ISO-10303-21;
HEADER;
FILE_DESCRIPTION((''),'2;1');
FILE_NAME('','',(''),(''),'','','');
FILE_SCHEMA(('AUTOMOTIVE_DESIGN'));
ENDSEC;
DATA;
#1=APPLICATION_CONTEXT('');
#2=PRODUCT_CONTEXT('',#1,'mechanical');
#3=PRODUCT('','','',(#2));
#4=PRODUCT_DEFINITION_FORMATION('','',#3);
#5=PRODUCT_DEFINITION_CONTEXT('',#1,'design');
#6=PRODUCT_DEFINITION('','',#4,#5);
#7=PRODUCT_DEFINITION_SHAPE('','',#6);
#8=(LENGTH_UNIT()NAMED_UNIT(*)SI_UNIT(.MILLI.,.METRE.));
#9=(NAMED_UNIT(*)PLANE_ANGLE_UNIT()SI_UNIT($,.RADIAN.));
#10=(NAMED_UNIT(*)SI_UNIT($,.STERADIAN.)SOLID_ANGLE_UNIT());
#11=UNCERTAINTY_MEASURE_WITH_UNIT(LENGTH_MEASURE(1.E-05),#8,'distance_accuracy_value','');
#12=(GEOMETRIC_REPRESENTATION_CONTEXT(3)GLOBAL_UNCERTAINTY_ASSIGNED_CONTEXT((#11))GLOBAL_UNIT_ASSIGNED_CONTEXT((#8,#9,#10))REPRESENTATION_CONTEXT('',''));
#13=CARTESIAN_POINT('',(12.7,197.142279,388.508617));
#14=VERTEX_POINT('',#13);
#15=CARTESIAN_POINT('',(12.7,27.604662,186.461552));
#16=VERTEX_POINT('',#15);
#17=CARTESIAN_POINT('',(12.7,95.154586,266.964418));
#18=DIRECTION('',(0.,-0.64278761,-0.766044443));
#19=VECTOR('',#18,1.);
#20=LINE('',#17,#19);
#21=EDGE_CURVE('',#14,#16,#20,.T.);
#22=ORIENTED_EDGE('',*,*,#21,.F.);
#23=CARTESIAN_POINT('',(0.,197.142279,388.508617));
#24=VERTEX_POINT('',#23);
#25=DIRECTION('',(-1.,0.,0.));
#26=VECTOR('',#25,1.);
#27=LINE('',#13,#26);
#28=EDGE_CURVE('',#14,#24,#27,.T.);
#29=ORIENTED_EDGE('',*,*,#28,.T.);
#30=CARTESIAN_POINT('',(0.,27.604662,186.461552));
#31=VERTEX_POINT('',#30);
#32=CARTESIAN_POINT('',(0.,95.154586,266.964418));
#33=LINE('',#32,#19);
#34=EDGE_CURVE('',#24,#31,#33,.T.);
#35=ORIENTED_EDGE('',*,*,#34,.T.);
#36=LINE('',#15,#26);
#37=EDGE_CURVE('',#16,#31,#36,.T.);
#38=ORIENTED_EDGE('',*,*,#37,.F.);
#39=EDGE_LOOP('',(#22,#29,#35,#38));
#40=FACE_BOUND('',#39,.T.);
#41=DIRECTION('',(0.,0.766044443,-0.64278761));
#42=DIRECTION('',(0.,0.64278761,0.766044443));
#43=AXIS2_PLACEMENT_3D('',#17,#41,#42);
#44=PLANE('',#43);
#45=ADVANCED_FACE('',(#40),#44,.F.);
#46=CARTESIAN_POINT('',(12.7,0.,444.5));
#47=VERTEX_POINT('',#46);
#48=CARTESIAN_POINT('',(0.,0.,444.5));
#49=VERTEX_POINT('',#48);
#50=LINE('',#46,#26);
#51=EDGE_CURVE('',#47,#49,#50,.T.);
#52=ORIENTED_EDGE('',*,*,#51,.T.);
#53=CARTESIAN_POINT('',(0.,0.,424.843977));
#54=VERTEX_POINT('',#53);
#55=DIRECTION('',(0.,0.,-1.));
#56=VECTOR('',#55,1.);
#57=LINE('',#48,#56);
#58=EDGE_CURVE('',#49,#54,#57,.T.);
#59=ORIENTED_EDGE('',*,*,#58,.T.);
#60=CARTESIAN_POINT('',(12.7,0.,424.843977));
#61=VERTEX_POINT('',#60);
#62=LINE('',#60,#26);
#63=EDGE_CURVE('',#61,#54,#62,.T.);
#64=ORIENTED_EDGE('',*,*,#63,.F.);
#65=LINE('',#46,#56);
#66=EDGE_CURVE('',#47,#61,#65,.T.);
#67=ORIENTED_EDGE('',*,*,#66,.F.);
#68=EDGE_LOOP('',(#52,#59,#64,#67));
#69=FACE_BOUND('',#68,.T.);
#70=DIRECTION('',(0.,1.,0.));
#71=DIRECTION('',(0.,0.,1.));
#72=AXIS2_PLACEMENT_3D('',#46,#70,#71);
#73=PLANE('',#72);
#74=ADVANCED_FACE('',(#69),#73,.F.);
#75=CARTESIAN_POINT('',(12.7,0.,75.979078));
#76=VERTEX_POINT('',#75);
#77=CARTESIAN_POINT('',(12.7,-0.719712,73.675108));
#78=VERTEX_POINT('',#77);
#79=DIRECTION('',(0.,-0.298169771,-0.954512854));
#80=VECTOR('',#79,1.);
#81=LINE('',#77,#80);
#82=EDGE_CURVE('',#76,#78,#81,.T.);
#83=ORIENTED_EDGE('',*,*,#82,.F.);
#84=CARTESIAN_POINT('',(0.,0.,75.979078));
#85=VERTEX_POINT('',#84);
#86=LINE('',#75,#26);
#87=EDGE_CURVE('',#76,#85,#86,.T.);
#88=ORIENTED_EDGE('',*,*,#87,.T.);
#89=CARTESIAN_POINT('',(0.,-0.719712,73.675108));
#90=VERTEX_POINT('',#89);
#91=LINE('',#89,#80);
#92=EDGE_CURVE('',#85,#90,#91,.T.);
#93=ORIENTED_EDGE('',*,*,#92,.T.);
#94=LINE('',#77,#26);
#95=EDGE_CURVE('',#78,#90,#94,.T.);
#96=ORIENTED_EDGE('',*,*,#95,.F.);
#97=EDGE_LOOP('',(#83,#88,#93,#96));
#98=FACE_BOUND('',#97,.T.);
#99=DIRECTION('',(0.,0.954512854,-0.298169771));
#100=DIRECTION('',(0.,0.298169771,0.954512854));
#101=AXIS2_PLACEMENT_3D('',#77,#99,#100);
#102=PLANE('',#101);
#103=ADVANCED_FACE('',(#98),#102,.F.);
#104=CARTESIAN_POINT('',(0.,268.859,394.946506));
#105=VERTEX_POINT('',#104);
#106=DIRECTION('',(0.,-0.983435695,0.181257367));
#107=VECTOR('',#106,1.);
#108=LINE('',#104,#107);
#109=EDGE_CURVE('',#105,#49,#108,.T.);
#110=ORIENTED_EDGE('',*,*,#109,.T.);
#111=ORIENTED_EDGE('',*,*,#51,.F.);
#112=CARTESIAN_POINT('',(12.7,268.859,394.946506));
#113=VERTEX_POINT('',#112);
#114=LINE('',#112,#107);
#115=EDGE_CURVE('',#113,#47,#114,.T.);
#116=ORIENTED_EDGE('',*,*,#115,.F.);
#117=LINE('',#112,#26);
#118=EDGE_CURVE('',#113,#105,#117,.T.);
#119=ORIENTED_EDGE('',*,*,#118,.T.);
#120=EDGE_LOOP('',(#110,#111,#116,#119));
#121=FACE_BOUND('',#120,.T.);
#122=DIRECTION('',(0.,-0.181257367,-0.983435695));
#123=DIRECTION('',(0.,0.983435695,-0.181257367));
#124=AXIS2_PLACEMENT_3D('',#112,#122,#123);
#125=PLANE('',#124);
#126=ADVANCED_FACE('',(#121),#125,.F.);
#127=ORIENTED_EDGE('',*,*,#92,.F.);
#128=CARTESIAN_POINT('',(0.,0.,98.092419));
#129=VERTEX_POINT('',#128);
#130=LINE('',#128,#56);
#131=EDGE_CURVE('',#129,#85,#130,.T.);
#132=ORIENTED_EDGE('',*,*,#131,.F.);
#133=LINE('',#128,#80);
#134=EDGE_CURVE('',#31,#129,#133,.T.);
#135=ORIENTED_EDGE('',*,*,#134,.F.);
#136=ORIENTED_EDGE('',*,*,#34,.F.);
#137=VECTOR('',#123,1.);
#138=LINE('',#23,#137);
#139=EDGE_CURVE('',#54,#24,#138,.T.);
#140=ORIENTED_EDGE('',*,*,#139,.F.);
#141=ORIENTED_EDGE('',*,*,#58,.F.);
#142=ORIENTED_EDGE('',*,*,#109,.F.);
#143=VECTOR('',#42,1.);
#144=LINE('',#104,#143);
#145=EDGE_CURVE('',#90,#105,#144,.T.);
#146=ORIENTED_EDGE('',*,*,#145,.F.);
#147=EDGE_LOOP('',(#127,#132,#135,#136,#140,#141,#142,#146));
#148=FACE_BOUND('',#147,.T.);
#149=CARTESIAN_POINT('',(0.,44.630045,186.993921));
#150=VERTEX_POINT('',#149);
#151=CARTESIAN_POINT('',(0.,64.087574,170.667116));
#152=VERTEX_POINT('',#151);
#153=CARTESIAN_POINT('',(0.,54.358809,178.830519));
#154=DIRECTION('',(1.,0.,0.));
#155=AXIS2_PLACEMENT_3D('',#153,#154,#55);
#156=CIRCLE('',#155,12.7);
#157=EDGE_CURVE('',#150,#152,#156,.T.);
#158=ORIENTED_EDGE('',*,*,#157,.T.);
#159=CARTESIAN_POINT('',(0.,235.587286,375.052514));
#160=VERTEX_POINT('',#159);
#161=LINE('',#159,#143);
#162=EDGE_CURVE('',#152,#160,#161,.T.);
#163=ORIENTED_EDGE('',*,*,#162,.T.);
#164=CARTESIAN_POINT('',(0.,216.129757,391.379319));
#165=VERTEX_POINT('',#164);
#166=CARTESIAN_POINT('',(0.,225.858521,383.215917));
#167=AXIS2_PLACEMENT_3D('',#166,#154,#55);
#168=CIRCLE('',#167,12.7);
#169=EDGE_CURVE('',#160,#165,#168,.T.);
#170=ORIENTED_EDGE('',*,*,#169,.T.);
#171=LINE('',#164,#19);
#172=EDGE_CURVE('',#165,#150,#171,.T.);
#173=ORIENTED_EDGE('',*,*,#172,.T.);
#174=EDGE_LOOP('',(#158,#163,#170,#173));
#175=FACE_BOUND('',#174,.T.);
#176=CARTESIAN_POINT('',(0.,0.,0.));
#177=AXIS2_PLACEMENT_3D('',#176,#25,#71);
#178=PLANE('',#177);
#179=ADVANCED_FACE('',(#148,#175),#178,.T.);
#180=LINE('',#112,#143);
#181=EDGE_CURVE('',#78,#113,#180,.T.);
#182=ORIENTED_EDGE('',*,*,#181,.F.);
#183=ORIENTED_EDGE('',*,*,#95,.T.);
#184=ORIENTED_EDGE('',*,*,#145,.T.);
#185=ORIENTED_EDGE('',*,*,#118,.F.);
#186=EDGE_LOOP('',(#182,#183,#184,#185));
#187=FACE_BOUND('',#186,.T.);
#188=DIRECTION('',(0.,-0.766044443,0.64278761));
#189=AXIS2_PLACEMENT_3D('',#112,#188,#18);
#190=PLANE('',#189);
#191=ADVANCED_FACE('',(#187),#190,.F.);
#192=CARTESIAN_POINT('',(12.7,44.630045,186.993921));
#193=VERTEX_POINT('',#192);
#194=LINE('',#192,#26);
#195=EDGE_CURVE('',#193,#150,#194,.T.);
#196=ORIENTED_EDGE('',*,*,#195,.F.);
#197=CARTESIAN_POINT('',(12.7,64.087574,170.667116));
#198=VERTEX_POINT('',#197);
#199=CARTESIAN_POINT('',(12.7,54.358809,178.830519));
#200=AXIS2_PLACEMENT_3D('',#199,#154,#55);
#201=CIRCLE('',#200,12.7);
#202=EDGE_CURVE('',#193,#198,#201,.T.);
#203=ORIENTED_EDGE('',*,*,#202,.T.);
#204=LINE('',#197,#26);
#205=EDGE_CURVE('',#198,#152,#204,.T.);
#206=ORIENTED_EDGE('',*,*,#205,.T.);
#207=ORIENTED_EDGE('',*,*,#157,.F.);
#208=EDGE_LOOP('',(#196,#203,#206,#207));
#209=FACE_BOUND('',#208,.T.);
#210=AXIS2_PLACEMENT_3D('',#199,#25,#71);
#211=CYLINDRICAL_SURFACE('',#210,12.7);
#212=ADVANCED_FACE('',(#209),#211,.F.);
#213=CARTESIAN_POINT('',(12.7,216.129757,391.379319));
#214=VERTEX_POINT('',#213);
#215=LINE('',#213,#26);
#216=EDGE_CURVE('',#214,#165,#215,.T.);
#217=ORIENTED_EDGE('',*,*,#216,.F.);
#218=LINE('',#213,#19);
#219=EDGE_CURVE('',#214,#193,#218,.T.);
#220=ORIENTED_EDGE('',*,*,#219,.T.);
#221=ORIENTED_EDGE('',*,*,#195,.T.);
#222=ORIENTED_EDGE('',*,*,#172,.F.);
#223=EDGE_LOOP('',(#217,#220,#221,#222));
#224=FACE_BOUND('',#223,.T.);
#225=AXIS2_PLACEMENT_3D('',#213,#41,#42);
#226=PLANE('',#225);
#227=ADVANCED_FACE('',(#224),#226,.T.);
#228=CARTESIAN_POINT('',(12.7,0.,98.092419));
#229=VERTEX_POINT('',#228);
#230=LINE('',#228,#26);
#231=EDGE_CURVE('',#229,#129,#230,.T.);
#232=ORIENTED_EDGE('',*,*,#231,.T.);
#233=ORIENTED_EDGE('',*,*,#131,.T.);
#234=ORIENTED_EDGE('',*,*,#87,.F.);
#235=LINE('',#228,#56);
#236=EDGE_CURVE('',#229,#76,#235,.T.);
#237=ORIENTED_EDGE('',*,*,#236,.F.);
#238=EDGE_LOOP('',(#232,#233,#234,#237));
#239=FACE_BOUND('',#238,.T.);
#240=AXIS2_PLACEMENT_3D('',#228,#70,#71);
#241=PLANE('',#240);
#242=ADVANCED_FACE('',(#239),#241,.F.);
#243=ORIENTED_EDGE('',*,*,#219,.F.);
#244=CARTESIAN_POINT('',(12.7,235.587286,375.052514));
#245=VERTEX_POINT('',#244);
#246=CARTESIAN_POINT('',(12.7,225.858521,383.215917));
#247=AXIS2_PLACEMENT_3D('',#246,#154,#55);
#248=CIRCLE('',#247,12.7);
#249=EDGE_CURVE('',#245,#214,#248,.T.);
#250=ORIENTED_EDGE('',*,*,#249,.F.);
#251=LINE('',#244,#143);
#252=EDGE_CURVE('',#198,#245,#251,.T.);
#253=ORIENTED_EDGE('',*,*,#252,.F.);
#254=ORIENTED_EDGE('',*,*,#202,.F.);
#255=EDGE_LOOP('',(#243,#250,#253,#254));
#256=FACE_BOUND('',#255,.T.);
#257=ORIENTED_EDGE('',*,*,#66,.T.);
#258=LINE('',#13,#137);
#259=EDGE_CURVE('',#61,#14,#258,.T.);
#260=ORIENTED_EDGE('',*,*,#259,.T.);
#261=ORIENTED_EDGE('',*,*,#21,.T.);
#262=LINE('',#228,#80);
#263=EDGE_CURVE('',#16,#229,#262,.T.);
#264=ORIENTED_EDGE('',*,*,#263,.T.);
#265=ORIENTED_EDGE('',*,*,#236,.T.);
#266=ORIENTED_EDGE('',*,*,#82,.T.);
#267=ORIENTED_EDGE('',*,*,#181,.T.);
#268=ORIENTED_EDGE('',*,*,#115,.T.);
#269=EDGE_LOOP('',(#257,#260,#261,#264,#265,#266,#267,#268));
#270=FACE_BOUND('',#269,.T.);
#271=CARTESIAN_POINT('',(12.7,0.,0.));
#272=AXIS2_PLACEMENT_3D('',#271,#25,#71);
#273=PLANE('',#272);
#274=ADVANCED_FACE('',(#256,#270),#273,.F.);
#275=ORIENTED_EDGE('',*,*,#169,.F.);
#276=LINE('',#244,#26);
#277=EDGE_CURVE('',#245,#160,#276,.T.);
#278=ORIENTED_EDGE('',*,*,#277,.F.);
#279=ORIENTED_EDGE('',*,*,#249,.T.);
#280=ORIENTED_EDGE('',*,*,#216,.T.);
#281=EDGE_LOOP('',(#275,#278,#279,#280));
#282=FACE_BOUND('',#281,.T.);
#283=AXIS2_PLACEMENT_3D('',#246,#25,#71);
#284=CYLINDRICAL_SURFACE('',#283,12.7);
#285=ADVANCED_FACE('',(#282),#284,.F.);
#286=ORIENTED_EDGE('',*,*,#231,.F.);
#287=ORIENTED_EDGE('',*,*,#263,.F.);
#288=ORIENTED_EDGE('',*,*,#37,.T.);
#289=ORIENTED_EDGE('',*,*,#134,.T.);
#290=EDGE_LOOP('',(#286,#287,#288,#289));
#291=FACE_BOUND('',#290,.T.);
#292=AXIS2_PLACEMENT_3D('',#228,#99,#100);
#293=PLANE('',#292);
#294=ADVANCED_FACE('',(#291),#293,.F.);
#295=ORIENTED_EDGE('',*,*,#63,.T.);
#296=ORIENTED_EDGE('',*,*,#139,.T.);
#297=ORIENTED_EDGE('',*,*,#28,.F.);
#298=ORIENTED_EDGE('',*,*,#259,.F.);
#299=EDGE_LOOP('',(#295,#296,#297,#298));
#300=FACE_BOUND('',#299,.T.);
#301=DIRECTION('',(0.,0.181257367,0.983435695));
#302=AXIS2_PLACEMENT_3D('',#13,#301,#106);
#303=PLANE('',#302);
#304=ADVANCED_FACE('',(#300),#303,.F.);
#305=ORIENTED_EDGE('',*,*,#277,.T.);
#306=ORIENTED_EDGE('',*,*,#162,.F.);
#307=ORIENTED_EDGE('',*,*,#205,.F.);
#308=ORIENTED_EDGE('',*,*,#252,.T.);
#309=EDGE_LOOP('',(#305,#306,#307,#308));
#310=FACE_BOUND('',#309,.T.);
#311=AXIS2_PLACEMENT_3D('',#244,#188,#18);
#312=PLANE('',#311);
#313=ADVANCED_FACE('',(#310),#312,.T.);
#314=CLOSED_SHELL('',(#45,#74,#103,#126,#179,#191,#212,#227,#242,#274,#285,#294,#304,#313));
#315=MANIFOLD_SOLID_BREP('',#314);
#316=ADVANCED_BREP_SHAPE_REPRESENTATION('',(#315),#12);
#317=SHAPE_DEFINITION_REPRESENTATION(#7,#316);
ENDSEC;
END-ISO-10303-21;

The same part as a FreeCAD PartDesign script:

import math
import FreeCAD as App
import Part
import Sketcher

V = App.Vector
Q = App.Units.Quantity

doc = App.newDocument("Part")
body = doc.addObject("PartDesign::Body", "Body")

sketch1 = doc.addObject("Sketcher::SketchObject", "Sketch")
body.addObject(sketch1)
sketch1.AttachmentSupport = (doc.YZ_Plane, [""])
sketch1.MapMode = "FlatFace"
sketch1.addGeometry([
    Part.LineSegment(V(268.9, 394.9, 0), V(0, 444.5, 0)),
    Part.LineSegment(V(0, 444.5, 0), V(0, 424.8, 0)),
    Part.LineSegment(V(0, 424.8, 0), V(197.1, 388.5, 0)),
    Part.LineSegment(V(197.1, 388.5, 0), V(95.2, 267, 0)),
    Part.LineSegment(V(95.2, 267, 0), V(27.6, 186.5, 0)),
    Part.LineSegment(V(27.6, 186.5, 0), V(0, 98.1, 0)),
    Part.LineSegment(V(0, 98.1, 0), V(0, 76, 0)),
    Part.LineSegment(V(0, 76, 0), V(-0.7, 73.7, 0)),
    Part.LineSegment(V(-0.7, 73.7, 0), V(268.9, 394.9, 0)),
    Part.ArcOfCircle(Part.Circle(V(225.9, 383.2, 0), V(0, 0, 1), 12.7), math.radians(-40), math.radians(140)),
    Part.LineSegment(V(235.6, 375.1, 0), V(64.1, 170.7, 0)),
    Part.ArcOfCircle(Part.Circle(V(54.4, 178.8, 0), V(0, 0, 1), 12.7), math.radians(140), math.radians(320)),
    Part.LineSegment(V(44.6, 187, 0), V(216.1, 391.4, 0)),
], False)
sketch1.addConstraint([
    Sketcher.Constraint("Coincident", 0, 2, 1, 1),
    Sketcher.Constraint("Coincident", 1, 2, 2, 1),
    Sketcher.Constraint("Coincident", 2, 2, 3, 1),
    Sketcher.Constraint("Coincident", 3, 2, 4, 1),
    Sketcher.Constraint("Coincident", 4, 2, 5, 1),
    Sketcher.Constraint("Coincident", 5, 2, 6, 1),
    Sketcher.Constraint("Coincident", 6, 2, 7, 1),
    Sketcher.Constraint("Coincident", 7, 2, 8, 1),
    Sketcher.Constraint("Coincident", 8, 2, 0, 1),
    Sketcher.Constraint("Tangent", 9, 1, 10, 1),
    Sketcher.Constraint("Tangent", 10, 2, 11, 2),
    Sketcher.Constraint("Tangent", 11, 1, 12, 1),
    Sketcher.Constraint("Tangent", 12, 2, 9, 2),
    Sketcher.Constraint("Vertical", 1),
    Sketcher.Constraint("Vertical", 6),
    Sketcher.Constraint("Equal", 9, 11),
    Sketcher.Constraint("PointOnObject", 0, 2, -2),
    Sketcher.Constraint("PointOnObject", 5, 2, -2),
    Sketcher.Constraint("Parallel", 0, 2),
    Sketcher.Constraint("Parallel", 3, 4),
    Sketcher.Constraint("Parallel", 5, 7),
    Sketcher.Constraint("Parallel", 4, 8),
    Sketcher.Constraint("Parallel", 8, 10),
    Sketcher.Constraint("Radius", 9, Q("0.5 in")),
    Sketcher.Constraint("Angle", 3, Q("-130 deg")),
    Sketcher.Constraint("DistanceY", -1, 1, 0, 2, Q("17.5 in")),
    Sketcher.Constraint("DistanceX", -1, 1, 8, 2, Q("10.585 in")),
    Sketcher.Constraint("DistanceY", 9, 3, 1, 2, Q("1.6389 in")),
    Sketcher.Constraint("DistanceY", 6, 2, 6, 1, 22.113341),
    Sketcher.Constraint("DistanceY", 9, 3, 2, 2, 5.2927),
    Sketcher.Constraint("DistanceY", 11, 3, 2, 2, 209.678098),
    Sketcher.Constraint("DistanceY", 11, 3, 3, 2, 88.133899),
    Sketcher.Constraint("DistanceY", 5, 2, 11, 3, 80.7381),
    Sketcher.Constraint("DistanceX", 7, 2, 3, 2, 95.874298),
    Sketcher.Constraint("DistanceX", 3, 2, 9, 1, 140.432699),
    Sketcher.Constraint("Distance", 5, 92.58035),
    Sketcher.Constraint("DistanceY", 1, 2, 1, 1, 19.656023),
])
pad1 = doc.addObject("PartDesign::Pad", "Pad")
body.addObject(pad1)
pad1.Profile = sketch1
pad1.Length = Q("0.5 in")

doc.recompute()
